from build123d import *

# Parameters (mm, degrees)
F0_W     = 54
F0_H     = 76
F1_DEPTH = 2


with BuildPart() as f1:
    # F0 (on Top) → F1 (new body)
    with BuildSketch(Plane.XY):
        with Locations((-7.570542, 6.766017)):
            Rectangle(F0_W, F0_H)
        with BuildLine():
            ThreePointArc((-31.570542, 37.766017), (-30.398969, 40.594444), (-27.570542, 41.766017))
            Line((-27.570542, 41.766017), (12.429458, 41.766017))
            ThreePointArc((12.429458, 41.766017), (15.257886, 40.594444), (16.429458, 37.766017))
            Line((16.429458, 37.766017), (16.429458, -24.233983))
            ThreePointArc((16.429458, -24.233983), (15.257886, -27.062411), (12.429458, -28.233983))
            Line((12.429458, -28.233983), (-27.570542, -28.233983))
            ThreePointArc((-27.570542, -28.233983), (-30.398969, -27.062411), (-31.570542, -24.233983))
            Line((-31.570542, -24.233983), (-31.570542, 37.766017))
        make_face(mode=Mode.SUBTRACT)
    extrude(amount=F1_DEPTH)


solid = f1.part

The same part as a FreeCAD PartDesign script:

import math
import FreeCAD as App
import Part
import Sketcher

V = App.Vector
Q = App.Units.Quantity


def add_polygon(sketch, points):
    """Adds a closed chain of lines whose ends are joined by coincident constraints."""
    first, n = sketch.GeometryCount, len(points)
    for a, b in zip(points, points[1:] + points[:1]):
        sketch.addGeometry(Part.LineSegment(App.Vector(*a, 0), App.Vector(*b, 0)), False)
    for i in range(n):
        sketch.addConstraint(Sketcher.Constraint("Coincident", first + i, 2, first + (i + 1) % n, 1))

doc = App.newDocument("Part")
body = doc.addObject("PartDesign::Body", "Body")

sketch1 = body.newObject("Sketcher::SketchObject", "Sketch")
sketch1.AttachmentSupport = (doc.getObject("XY_Plane"), [""])
sketch1.MapMode = "FlatFace"
add_polygon(sketch1, [(-34.570542, 44.766017), (-34.570542, -31.233983), (19.429458, -31.233983), (19.429458, 44.766017)])
sketch1.addGeometry(Part.LineSegment(V(-31.570542, -24.233983, 0), V(-31.570542, 37.766017, 0)), False)
sketch1.addGeometry(Part.ArcOfCircle(Part.Circle(V(-27.570542, 37.766017, 0), V(0, 0, 1), 4), math.radians(90.000006), math.radians(179.999994)), False)
sketch1.addGeometry(Part.LineSegment(V(-27.570542, 41.766017, 0), V(12.429458, 41.766017, 0)), False)
sketch1.addGeometry(Part.ArcOfCircle(Part.Circle(V(12.429459, 37.766018, 0), V(0, 0, 1), 3.999999), math.radians(-0.000018), math.radians(90.000018)), False)
sketch1.addGeometry(Part.LineSegment(V(16.429458, 37.766017, 0), V(16.429458, -24.233983, 0)), False)
sketch1.addGeometry(Part.ArcOfCircle(Part.Circle(V(12.429461, -24.233986, 0), V(0, 0, 1), 3.999997), math.radians(-90.000043), math.radians(0.000043)), False)
sketch1.addGeometry(Part.LineSegment(V(12.429458, -28.233983, 0), V(-27.570542, -28.233983, 0)), False)
sketch1.addGeometry(Part.ArcOfCircle(Part.Circle(V(-27.570543, -24.233984, 0), V(0, 0, 1), 3.999999), math.radians(179.999982), math.radians(270.000018)), False)
sketch1.addConstraint(Sketcher.Constraint("Tangent", 4, 2, 5, 2))
sketch1.addConstraint(Sketcher.Constraint("Tangent", 5, 1, 6, 1))
sketch1.addConstraint(Sketcher.Constraint("Tangent", 6, 2, 7, 2))
sketch1.addConstraint(Sketcher.Constraint("Tangent", 7, 1, 8, 1))
sketch1.addConstraint(Sketcher.Constraint("Tangent", 8, 2, 9, 2))
sketch1.addConstraint(Sketcher.Constraint("Tangent", 9, 1, 10, 1))
sketch1.addConstraint(Sketcher.Constraint("Tangent", 10, 2, 11, 2))
sketch1.addConstraint(Sketcher.Constraint("Tangent", 11, 1, 4, 1))
sketch1.addConstraint(Sketcher.Constraint("Vertical", 0))
sketch1.addConstraint(Sketcher.Constraint("Horizontal", 1))
sketch1.addConstraint(Sketcher.Constraint("Vertical", 2))
sketch1.addConstraint(Sketcher.Constraint("Horizontal", 3))
sketch1.addConstraint(Sketcher.Constraint("Vertical", 4))
sketch1.addConstraint(Sketcher.Constraint("Horizontal", 6))
sketch1.addConstraint(Sketcher.Constraint("Vertical", 8))
sketch1.addConstraint(Sketcher.Constraint("Horizontal", 10))
sketch1.addConstraint(Sketcher.Constraint("Equal", 5, 7))
sketch1.addConstraint(Sketcher.Constraint("Equal", 7, 9))
sketch1.addConstraint(Sketcher.Constraint("Equal", 9, 11))
sketch1.addConstraint(Sketcher.Constraint("Radius", 5, Q("4 mm")))
sketch1.addConstraint(Sketcher.Constraint("DistanceX", 1, 1, 1, 2, Q("54 mm")))
sketch1.addConstraint(Sketcher.Constraint("DistanceX", 6, 1, 6, 2, Q("40 mm")))
sketch1.addConstraint(Sketcher.Constraint("DistanceY", 0, 2, 0, 1, Q("76 mm")))
sketch1.addConstraint(Sketcher.Constraint("DistanceY", 4, 1, 4, 2, Q("62 mm")))
sketch1.addConstraint(Sketcher.Constraint("DistanceX", 0, 2, 11, 3, Q("6.999999 mm")))
sketch1.addConstraint(Sketcher.Constraint("DistanceY", 0, 2, 11, 3, Q("6.999999 mm")))
sketch1.addConstraint(Sketcher.Constraint("DistanceX", 5, 3, -1, 1, Q("27.570542 mm")))
sketch1.addConstraint(Sketcher.Constraint("DistanceY", -1, 1, 7, 3, Q("37.766018 mm")))
pad1 = body.newObject("PartDesign::Pad", "Pad")
pad1.Profile = sketch1
pad1.Length = 2

doc.recompute()
